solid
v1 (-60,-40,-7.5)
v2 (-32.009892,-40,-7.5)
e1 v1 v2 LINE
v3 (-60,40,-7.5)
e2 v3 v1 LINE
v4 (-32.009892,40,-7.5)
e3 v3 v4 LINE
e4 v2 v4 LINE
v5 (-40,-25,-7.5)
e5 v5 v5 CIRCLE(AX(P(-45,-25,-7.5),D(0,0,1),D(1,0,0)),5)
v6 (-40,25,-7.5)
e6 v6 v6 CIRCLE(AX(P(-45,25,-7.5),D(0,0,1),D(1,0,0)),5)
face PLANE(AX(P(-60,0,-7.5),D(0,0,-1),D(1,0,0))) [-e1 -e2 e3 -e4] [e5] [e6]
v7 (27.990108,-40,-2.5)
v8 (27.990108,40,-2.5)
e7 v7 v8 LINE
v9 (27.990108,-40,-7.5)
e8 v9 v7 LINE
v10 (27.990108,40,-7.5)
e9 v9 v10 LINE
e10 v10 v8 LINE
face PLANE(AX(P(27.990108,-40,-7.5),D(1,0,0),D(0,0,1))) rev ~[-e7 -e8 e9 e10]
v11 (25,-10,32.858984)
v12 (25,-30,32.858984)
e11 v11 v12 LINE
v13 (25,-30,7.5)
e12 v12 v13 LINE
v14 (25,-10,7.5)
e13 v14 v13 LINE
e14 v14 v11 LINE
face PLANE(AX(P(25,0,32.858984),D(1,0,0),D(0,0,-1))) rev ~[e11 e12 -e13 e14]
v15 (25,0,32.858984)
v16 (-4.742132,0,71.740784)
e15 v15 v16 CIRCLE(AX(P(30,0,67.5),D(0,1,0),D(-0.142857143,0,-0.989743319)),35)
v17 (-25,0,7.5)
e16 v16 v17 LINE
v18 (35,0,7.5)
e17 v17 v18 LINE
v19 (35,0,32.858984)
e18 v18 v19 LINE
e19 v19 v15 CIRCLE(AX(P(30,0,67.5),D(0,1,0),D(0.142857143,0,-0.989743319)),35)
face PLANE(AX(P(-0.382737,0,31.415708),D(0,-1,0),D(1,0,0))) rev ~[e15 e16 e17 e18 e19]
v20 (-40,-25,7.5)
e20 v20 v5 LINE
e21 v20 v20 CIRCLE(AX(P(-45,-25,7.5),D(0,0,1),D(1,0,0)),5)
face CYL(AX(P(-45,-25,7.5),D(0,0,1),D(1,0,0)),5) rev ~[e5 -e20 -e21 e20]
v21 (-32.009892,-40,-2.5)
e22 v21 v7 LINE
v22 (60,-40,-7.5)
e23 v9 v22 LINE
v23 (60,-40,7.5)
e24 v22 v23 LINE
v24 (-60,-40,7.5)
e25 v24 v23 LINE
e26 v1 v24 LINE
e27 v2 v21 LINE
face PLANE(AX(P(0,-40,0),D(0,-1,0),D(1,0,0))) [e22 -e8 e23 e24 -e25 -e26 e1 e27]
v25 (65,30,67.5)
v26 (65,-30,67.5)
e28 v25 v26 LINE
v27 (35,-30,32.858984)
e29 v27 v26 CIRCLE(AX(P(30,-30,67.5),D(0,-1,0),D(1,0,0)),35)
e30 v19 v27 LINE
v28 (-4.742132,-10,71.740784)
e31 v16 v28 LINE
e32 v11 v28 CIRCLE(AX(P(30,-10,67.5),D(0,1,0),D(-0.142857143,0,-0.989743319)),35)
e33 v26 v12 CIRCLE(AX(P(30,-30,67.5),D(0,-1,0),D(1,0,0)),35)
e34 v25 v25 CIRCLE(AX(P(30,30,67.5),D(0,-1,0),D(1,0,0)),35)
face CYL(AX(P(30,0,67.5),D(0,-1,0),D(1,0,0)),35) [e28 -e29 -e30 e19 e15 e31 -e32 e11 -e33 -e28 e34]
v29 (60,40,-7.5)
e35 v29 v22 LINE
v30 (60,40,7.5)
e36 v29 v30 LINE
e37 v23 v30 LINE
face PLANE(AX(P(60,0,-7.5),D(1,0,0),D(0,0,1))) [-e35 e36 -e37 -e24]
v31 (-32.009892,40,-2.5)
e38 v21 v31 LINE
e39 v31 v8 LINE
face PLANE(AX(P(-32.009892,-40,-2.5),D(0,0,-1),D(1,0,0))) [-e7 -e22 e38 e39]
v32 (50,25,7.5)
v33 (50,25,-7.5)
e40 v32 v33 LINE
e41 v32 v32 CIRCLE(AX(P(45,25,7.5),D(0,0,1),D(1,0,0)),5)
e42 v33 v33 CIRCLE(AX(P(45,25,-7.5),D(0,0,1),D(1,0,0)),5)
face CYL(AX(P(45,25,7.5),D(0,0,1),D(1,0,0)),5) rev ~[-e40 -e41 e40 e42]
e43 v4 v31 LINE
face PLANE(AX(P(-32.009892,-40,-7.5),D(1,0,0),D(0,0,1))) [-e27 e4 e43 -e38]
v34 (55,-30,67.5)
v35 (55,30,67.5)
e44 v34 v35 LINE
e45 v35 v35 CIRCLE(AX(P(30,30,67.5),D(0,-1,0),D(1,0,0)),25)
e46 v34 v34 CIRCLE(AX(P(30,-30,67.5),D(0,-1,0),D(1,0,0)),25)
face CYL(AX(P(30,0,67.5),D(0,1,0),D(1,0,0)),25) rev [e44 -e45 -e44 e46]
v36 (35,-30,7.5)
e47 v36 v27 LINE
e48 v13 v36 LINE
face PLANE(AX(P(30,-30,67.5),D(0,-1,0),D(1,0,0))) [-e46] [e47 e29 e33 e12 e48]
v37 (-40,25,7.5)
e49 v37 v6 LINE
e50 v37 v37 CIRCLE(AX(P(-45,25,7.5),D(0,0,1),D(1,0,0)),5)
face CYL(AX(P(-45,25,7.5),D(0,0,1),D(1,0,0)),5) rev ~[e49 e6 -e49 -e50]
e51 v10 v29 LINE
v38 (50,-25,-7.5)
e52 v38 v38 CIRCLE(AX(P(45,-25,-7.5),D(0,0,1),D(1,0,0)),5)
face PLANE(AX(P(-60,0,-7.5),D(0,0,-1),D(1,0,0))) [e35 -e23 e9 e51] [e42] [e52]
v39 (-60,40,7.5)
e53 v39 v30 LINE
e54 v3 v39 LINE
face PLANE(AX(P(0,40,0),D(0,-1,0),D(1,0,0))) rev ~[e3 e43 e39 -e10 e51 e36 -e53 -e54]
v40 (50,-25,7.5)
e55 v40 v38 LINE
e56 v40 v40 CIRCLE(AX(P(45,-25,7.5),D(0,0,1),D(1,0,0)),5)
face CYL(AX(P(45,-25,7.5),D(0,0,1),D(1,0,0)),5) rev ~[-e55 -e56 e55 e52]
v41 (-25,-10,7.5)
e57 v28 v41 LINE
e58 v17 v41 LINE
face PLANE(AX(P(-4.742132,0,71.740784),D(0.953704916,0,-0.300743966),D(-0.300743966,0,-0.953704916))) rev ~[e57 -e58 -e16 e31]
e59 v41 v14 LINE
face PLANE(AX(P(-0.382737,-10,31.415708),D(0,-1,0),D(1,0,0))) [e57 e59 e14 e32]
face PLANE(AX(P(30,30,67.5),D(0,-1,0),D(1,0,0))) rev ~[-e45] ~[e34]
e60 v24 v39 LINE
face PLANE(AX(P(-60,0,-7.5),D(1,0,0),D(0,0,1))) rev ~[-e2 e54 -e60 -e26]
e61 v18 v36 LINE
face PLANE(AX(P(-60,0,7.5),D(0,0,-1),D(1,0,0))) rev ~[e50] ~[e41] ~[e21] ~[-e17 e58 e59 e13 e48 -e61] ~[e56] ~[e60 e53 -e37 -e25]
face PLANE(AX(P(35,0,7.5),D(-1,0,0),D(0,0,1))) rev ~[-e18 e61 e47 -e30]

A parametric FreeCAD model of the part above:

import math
import FreeCAD as App
import Part
import Sketcher

doc = App.newDocument("Part")
body = doc.addObject("PartDesign::Body", "Body")

# Sketch on XZ plane
sketch1 = body.newObject("Sketcher::SketchObject", "Sketch")
sketch1.AttachmentSupport = (doc.getObject("XZ_Plane"), [""])
sketch1.MapMode = "FlatFace"
sketch1.addGeometry(Part.LineSegment(App.Vector(-60, 8, 0), App.Vector(-60, -8, 0)), False)
sketch1.addGeometry(Part.LineSegment(App.Vector(-60, -8, 0), App.Vector(60, -8, 0)), False)
sketch1.addGeometry(Part.LineSegment(App.Vector(60, -8, 0), App.Vector(60, 8, 0)), False)
sketch1.addGeometry(Part.LineSegment(App.Vector(60, 8, 0), App.Vector(-60, 8, 0)), False)
sketch1.addConstraint(Sketcher.Constraint("Coincident", 0, 2, 1, 1))
sketch1.addConstraint(Sketcher.Constraint("Coincident", 1, 2, 2, 1))
sketch1.addConstraint(Sketcher.Constraint("Coincident", 2, 2, 3, 1))
sketch1.addConstraint(Sketcher.Constraint("Coincident", 3, 2, 0, 1))
sketch1.addConstraint(Sketcher.Constraint("Vertical", 0))
sketch1.addConstraint(Sketcher.Constraint("Horizontal", 1))
sketch1.addConstraint(Sketcher.Constraint("Vertical", 2))
sketch1.addConstraint(Sketcher.Constraint("Horizontal", 3))
sketch1.addConstraint(Sketcher.Constraint("Symmetric", 0, 2, 2, 2, -1, 1))
sketch1.addConstraint(Sketcher.Constraint("DistanceX", 1, 1, 1, 2, 120.0))
sketch1.addConstraint(Sketcher.Constraint("DistanceY", 0, 2, 0, 1, 15.0))
pad1 = body.newObject("PartDesign::Pad", "Pad")
pad1.Profile = sketch1
pad1.Length = 80
pad1.Midplane = True

# Sketch on XZ plane
sketch2 = body.newObject("Sketcher::SketchObject", "Sketch001")
sketch2.AttachmentSupport = (doc.getObject("XZ_Plane"), [""])
sketch2.MapMode = "FlatFace"
sketch2.AttachmentOffset = App.Placement(App.Vector(0, 0, 40), App.Rotation())
sketch2.addGeometry(Part.LineSegment(App.Vector(-32, -2, 0), App.Vector(-32, -8, 0)), False)
sketch2.addGeometry(Part.LineSegment(App.Vector(-32, -8, 0), App.Vector(28, -8, 0)), False)
sketch2.addGeometry(Part.LineSegment(App.Vector(28, -8, 0), App.Vector(28, -2, 0)), False)
sketch2.addGeometry(Part.LineSegment(App.Vector(28, -2, 0), App.Vector(-32, -2, 0)), False)
sketch2.addConstraint(Sketcher.Constraint("Coincident", 0, 2, 1, 1))
sketch2.addConstraint(Sketcher.Constraint("Coincident", 1, 2, 2, 1))
sketch2.addConstraint(Sketcher.Constraint("Coincident", 2, 2, 3, 1))
sketch2.addConstraint(Sketcher.Constraint("Coincident", 3, 2, 0, 1))
sketch2.addConstraint(Sketcher.Constraint("Vertical", 0))
sketch2.addConstraint(Sketcher.Constraint("Horizontal", 1))
sketch2.addConstraint(Sketcher.Constraint("Vertical", 2))
sketch2.addConstraint(Sketcher.Constraint("Horizontal", 3))
sketch2.addConstraint(Sketcher.Constraint("DistanceX", 1, 1, 1, 2, 60.0))
sketch2.addConstraint(Sketcher.Constraint("DistanceY", 0, 2, 0, 1, 5.0))
sketch2.addConstraint(Sketcher.Constraint("DistanceY", 0, 2, -1, 1, 7.5))
sketch2.addConstraint(Sketcher.Constraint("DistanceX", 0, 2, -1, 1, 32.009892))
pocket1 = body.newObject("PartDesign::Pocket", "Pocket")
pocket1.Profile = sketch2
pocket1.Type = "ThroughAll"

# Sketch on XY plane
sketch3 = body.newObject("Sketcher::SketchObject", "Sketch002")
sketch3.AttachmentSupport = (doc.getObject("XY_Plane"), [""])
sketch3.MapMode = "FlatFace"
sketch3.AttachmentOffset = App.Placement(App.Vector(0, 0, 7.5), App.Rotation())
sketch3.addGeometry(Part.Circle(App.Vector(-45, 25, 0), App.Vector(0, 0, 1), 5), False)
sketch3.addGeometry(Part.Circle(App.Vector(-45, -25, 0), App.Vector(0, 0, 1), 5), False)
sketch3.addGeometry(Part.Circle(App.Vector(45, -25, 0), App.Vector(0, 0, 1), 5), False)
sketch3.addGeometry(Part.Circle(App.Vector(45, 25, 0), App.Vector(0, 0, 1), 5), False)
sketch3.addConstraint(Sketcher.Constraint("Equal", 0, 1))
sketch3.addConstraint(Sketcher.Constraint("Equal", 1, 2))
sketch3.addConstraint(Sketcher.Constraint("Equal", 2, 3))
sketch3.addConstraint(Sketcher.Constraint("Symmetric", 0, 3, 2, 3, -1, 1))
sketch3.addConstraint(Sketcher.Constraint("Symmetric", 1, 3, 3, 3, -1, 1))
sketch3.addConstraint(Sketcher.Constraint("Symmetric", 1, 3, 2, 3, -2))
sketch3.addConstraint(Sketcher.Constraint("Diameter", 0, 10.0))
sketch3.addConstraint(Sketcher.Constraint("DistanceX", 0, 3, -1, 1, 45.0))
sketch3.addConstraint(Sketcher.Constraint("DistanceY", -1, 1, 0, 3, 25.0))
pocket2 = body.newObject("PartDesign::Pocket", "Pocket001")
pocket2.Profile = sketch3
pocket2.Type = "ThroughAll"
body2 = doc.addObject("PartDesign::Body", "Body001")

# Sketch on XZ plane
sketch4 = body2.newObject("Sketcher::SketchObject", "Sketch003")
sketch4.AttachmentSupport = (doc.getObject("XZ_Plane001"), [""])
sketch4.MapMode = "FlatFace"
sketch4.addGeometry(Part.Circle(App.Vector(30, 68, 0), App.Vector(0, 0, 1), 35), False)
sketch4.addGeometry(Part.Circle(App.Vector(30, 68, 0), App.Vector(0, 0, 1), 25), False)
sketch4.addConstraint(Sketcher.Constraint("Coincident", 1, 3, 0, 3))
sketch4.addConstraint(Sketcher.Constraint("Diameter", 0, 70.0))
sketch4.addConstraint(Sketcher.Constraint("Diameter", 1, 50.0))
sketch4.addConstraint(Sketcher.Constraint("DistanceX", -1, 1, 0, 3, 30.0))
sketch4.addConstraint(Sketcher.Constraint("DistanceY", -1, 1, 0, 3, 67.5))
pad2 = body2.newObject("PartDesign::Pad", "Pad001")
pad2.Profile = sketch4
pad2.Length = 60
pad2.Midplane = True
body.AllowCompound = True
doc.recompute()

boolean = body.newObject("PartDesign::Boolean", "Boolean")
boolean.Type = "Fuse"
boolean.addObjects([body2])

# Sketch on XZ plane
sketch5 = body.newObject("Sketcher::SketchObject", "Sketch004")
sketch5.AttachmentSupport = (doc.getObject("XZ_Plane"), [""])
sketch5.MapMode = "FlatFace"
sketch5.addGeometry(Part.ArcOfCircle(Part.Circle(App.Vector(30, 68, 0), App.Vector(0, 0, 1), 35), math.radians(-98.21), math.radians(-81.79)), False)
sketch5.addGeometry(Part.LineSegment(App.Vector(25, 33, 0), App.Vector(25, 8, 0)), False)
sketch5.addGeometry(Part.LineSegment(App.Vector(25, 8, 0), App.Vector(35, 8, 0)), False)
sketch5.addGeometry(Part.LineSegment(App.Vector(35, 8, 0), App.Vector(35, 33, 0)), False)
sketch5.addConstraint(Sketcher.Constraint("Coincident", 0, 1, 1, 1))
sketch5.addConstraint(Sketcher.Constraint("Coincident", 1, 2, 2, 1))
sketch5.addConstraint(Sketcher.Constraint("Coincident", 2, 2, 3, 1))
sketch5.addConstraint(Sketcher.Constraint("Coincident", 3, 2, 0, 2))
sketch5.addConstraint(Sketcher.Constraint("Vertical", 1))
sketch5.addConstraint(Sketcher.Constraint("Horizontal", 2))
sketch5.addConstraint(Sketcher.Constraint("Vertical", 3))
sketch5.addConstraint(Sketcher.Constraint("Horizontal", 0, 1, 3, 2))
sketch5.addConstraint(Sketcher.Constraint("Radius", 0, 35.0))
sketch5.addConstraint(Sketcher.Constraint("DistanceX", 2, 1, 2, 2, 10.0))
sketch5.addConstraint(Sketcher.Constraint("DistanceX", -1, 1, 0, 3, 30.0))
sketch5.addConstraint(Sketcher.Constraint("DistanceY", 1, 2, 0, 3, 60.0))
sketch5.addConstraint(Sketcher.Constraint("DistanceY", -1, 1, 0, 3, 67.5))
pad3 = body.newObject("PartDesign::Pad", "Pad002")
pad3.Profile = sketch5
pad3.Length = 30

# Sketch on XZ plane
sketch6 = body.newObject("Sketcher::SketchObject", "Sketch005")
sketch6.AttachmentSupport = (doc.getObject("XZ_Plane"), [""])
sketch6.MapMode = "FlatFace"
sketch6.addGeometry(Part.ArcOfCircle(Part.Circle(App.Vector(30, 68, 0), App.Vector(0, 0, 1), 35), math.radians(173), math.radians(262)), False)
sketch6.addGeometry(Part.LineSegment(App.Vector(-5, 72, 0), App.Vector(-25, 8, 0)), False)
sketch6.addGeometry(Part.LineSegment(App.Vector(-25, 8, 0), App.Vector(25, 8, 0)), False)
sketch6.addGeometry(Part.LineSegment(App.Vector(25, 8, 0), App.Vector(25, 33, 0)), False)
sketch6.addConstraint(Sketcher.Constraint("Coincident", 0, 1, 1, 1))
sketch6.addConstraint(Sketcher.Constraint("Coincident", 1, 2, 2, 1))
sketch6.addConstraint(Sketcher.Constraint("Coincident", 2, 2, 3, 1))
sketch6.addConstraint(Sketcher.Constraint("Coincident", 3, 2, 0, 2))
sketch6.addConstraint(Sketcher.Constraint("Horizontal", 2))
sketch6.addConstraint(Sketcher.Constraint("Vertical", 3))
sketch6.addConstraint(Sketcher.Constraint("Radius", 0, 35.0))
sketch6.addConstraint(Sketcher.Constraint("DistanceX", 2, 1, 2, 2, 50.0))
sketch6.addConstraint(Sketcher.Constraint("DistanceX", -1, 1, 0, 3, 30.0))
sketch6.addConstraint(Sketcher.Constraint("DistanceX", 1, 2, -1, 1, 25.0))
sketch6.addConstraint(Sketcher.Constraint("DistanceY", 1, 2, 0, 3, 60.0))
sketch6.addConstraint(Sketcher.Constraint("DistanceY", -1, 1, 0, 3, 67.5))
sketch6.addConstraint(Sketcher.Constraint("DistanceY", 3, 2, 0, 1, 38.8818))
pad4 = body.newObject("PartDesign::Pad", "Pad003")
pad4.Profile = sketch6
pad4.Length = 10

doc.recompute()
